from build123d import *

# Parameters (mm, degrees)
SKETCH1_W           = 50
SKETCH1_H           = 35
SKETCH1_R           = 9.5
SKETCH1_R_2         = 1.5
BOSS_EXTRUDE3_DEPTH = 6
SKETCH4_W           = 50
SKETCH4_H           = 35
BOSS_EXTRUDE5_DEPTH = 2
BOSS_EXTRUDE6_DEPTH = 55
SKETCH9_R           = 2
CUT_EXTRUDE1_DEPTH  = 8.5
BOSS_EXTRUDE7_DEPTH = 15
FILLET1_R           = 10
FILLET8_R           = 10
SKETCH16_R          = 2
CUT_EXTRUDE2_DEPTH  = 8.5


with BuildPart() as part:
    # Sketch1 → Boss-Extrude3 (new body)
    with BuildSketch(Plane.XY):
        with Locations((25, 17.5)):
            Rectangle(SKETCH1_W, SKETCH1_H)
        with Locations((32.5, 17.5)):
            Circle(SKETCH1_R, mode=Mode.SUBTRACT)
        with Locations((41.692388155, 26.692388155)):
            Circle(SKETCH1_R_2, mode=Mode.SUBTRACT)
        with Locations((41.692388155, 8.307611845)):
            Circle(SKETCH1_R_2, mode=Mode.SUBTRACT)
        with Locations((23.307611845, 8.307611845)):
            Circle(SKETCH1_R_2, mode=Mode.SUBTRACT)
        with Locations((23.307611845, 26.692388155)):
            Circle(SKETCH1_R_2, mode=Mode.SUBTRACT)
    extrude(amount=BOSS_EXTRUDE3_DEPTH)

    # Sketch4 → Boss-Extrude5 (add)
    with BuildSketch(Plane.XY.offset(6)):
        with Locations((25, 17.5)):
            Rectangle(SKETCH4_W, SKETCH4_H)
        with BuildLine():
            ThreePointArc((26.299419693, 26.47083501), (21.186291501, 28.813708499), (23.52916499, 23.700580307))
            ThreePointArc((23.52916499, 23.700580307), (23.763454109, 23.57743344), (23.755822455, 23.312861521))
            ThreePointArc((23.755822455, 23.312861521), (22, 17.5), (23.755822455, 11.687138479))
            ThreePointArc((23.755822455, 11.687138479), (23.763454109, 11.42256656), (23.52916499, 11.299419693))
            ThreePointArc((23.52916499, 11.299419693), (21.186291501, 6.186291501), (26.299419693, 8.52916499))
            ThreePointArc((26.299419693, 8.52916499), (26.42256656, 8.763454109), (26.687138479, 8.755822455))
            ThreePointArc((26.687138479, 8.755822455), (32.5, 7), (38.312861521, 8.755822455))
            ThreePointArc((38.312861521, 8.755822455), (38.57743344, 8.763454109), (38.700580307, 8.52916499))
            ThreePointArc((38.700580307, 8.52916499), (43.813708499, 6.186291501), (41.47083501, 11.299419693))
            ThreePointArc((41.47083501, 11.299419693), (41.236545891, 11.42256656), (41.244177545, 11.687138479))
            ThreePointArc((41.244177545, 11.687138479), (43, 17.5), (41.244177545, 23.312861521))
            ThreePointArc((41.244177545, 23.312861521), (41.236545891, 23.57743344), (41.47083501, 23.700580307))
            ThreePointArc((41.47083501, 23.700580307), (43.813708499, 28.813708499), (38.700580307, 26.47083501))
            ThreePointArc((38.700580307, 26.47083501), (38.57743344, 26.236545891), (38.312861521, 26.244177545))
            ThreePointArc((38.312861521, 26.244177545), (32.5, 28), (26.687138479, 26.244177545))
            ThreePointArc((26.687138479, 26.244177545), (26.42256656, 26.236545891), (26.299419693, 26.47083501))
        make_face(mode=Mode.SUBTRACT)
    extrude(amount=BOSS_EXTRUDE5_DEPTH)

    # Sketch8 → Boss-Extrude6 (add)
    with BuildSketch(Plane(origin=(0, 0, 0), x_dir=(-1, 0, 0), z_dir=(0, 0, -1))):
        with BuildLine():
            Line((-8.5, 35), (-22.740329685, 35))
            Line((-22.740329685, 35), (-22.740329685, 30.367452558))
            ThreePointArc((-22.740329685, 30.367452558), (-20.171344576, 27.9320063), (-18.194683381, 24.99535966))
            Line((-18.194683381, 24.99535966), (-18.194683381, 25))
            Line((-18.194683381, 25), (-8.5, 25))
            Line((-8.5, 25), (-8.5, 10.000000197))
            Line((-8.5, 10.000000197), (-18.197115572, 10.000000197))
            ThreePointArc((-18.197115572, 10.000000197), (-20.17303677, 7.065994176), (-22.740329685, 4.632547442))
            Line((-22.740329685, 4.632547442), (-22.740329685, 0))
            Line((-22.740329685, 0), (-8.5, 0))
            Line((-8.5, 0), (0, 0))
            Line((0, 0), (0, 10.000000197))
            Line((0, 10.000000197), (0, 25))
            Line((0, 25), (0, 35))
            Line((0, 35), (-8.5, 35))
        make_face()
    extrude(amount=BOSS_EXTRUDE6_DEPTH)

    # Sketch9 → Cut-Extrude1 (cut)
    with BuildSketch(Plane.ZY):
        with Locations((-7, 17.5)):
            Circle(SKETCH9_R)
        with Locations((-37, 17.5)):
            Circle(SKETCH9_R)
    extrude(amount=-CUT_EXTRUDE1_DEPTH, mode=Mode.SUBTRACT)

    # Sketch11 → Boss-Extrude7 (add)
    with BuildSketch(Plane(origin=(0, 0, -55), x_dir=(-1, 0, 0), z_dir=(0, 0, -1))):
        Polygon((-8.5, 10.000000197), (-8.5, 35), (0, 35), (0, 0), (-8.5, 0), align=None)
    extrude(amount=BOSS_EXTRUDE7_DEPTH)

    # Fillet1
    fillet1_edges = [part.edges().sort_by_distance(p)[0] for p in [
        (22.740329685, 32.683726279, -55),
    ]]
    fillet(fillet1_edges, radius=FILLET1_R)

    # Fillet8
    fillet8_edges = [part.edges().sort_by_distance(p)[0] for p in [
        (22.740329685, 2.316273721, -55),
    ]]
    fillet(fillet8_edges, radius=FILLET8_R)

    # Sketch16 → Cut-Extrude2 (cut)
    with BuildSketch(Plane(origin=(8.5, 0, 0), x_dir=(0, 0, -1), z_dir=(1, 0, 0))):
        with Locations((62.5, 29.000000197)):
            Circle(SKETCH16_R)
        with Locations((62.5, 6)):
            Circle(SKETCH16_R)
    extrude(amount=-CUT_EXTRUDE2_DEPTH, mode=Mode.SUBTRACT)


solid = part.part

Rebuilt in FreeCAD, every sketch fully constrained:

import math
import FreeCAD as App
import Part
import Sketcher
from FreeCAD import Vector


def edges_at(feature, points):
    """Names of the edges that pass closest to the given points."""
    edges = feature.Shape.Edges
    near = lambda p: min(range(len(edges)), key=lambda i: edges[i].distToShape(Part.Vertex(*p))[0])
    return sorted({f"Edge{near(p) + 1}" for p in points})

doc = App.newDocument("Part")
body = doc.addObject("PartDesign::Body", "Body")

sketch1 = body.newObject("Sketcher::SketchObject", "Sketch")
sketch1.AttachmentSupport = (doc.getObject("XY_Plane"), [""])
sketch1.MapMode = "FlatFace"
sketch1.addGeometry([
    Part.LineSegment(Vector(0, 35, 0), Vector(0, 0, 0)),
    Part.LineSegment(Vector(0, 0, 0), Vector(50, 0, 0)),
    Part.LineSegment(Vector(50, 0, 0), Vector(50, 35, 0)),
    Part.LineSegment(Vector(50, 35, 0), Vector(0, 35, 0)),
    Part.Circle(Vector(23.3, 8.3, 0), Vector(0, 0, 1), 1.5),
    Part.Circle(Vector(41.7, 8.3, 0), Vector(0, 0, 1), 1.5),
    Part.Circle(Vector(32.5, 17.5, 0), Vector(0, 0, 1), 9.5),
    Part.Circle(Vector(23.3, 26.7, 0), Vector(0, 0, 1), 1.5),
    Part.Circle(Vector(41.7, 26.7, 0), Vector(0, 0, 1), 1.5),
], False)
sketch1.addConstraint([
    Sketcher.Constraint("Coincident", 0, 2, 1, 1),
    Sketcher.Constraint("Coincident", 1, 2, 2, 1),
    Sketcher.Constraint("Coincident", 2, 2, 3, 1),
    Sketcher.Constraint("Coincident", 3, 2, 0, 1),
    Sketcher.Constraint("Vertical", 0),
    Sketcher.Constraint("Horizontal", 1),
    Sketcher.Constraint("Vertical", 2),
    Sketcher.Constraint("Horizontal", 3),
    Sketcher.Constraint("Coincident", 0, 2, -1, 1),
    Sketcher.Constraint("Equal", 4, 5),
    Sketcher.Constraint("Equal", 5, 7),
    Sketcher.Constraint("Equal", 7, 8),
    Sketcher.Constraint("Horizontal", 4, 3, 5, 3),
    Sketcher.Constraint("Horizontal", 7, 3, 8, 3),
    Sketcher.Constraint("Vertical", 4, 3, 7, 3),
    Sketcher.Constraint("Vertical", 5, 3, 8, 3),
    Sketcher.Constraint("Diameter", 4, 3.0),
    Sketcher.Constraint("Diameter", 6, 19.0),
    Sketcher.Constraint("DistanceX", 1, 1, 1, 2, 50.0),
    Sketcher.Constraint("DistanceY", 0, 2, 0, 1, 35.0),
    Sketcher.Constraint("DistanceX", -1, 1, 6, 3, 32.5),
    Sketcher.Constraint("DistanceY", -1, 1, 6, 3, 17.5),
    Sketcher.Constraint("DistanceX", -1, 1, 4, 3, 23.307612),
    Sketcher.Constraint("DistanceY", -1, 1, 4, 3, 8.307612),
    Sketcher.Constraint("DistanceX", -1, 1, 5, 3, 41.692388),
    Sketcher.Constraint("DistanceY", -1, 1, 7, 3, 26.692388),
])
pad1 = body.newObject("PartDesign::Pad", "Pad")
pad1.Profile = sketch1
pad1.Length = 6

sketch2 = body.newObject("Sketcher::SketchObject", "Sketch001")
sketch2.AttachmentSupport = (doc.getObject("XY_Plane"), [""])
sketch2.MapMode = "FlatFace"
sketch2.AttachmentOffset = App.Placement(Vector(0, 0, 6), App.Rotation())
sketch2.addGeometry([
    Part.LineSegment(Vector(0, 35, 0), Vector(0, 0, 0)),
    Part.LineSegment(Vector(0, 0, 0), Vector(50, 0, 0)),
    Part.LineSegment(Vector(50, 0, 0), Vector(50, 35, 0)),
    Part.LineSegment(Vector(50, 35, 0), Vector(0, 35, 0)),
    Part.ArcOfCircle(Part.Circle(Vector(23.307612, 26.692388, 0), Vector(0, 0, 1), 3), math.radians(-4.235209), math.radians(274.235209)),
    Part.ArcOfCircle(Part.Circle(Vector(26.548737, 26.452372, 0), Vector(0, 0, 1), 0.25), math.radians(175.764791), math.radians(303.614743)),
    Part.ArcOfCircle(Part.Circle(Vector(32.5, 17.5, 0), Vector(0, 0, 1), 10.5), math.radians(56.385257), math.radians(123.614743)),
    Part.ArcOfCircle(Part.Circle(Vector(38.451263, 26.452372, 0), Vector(0, 0, 1), 0.25), math.radians(-123.614743), math.radians(4.235209)),
    Part.ArcOfCircle(Part.Circle(Vector(41.692388, 26.692388, 0), Vector(0, 0, 1), 3), math.radians(-94.235209), math.radians(184.235209)),
    Part.ArcOfCircle(Part.Circle(Vector(41.452372, 23.451263, 0), Vector(0, 0, 1), 0.25), math.radians(85.764791), math.radians(213.614743)),
    Part.ArcOfCircle(Part.Circle(Vector(32.5, 17.5, 0), Vector(0, 0, 1), 10.5), math.radians(-33.614743), math.radians(33.614743)),
    Part.ArcOfCircle(Part.Circle(Vector(41.452372, 11.548737, 0), Vector(0, 0, 1), 0.25), math.radians(146.385257), math.radians(274.235209)),
    Part.ArcOfCircle(Part.Circle(Vector(41.692388, 8.307612, 0), Vector(0, 0, 1), 3), math.radians(175.764791), math.radians(454.235209)),
    Part.ArcOfCircle(Part.Circle(Vector(38.451263, 8.547628, 0), Vector(0, 0, 1), 0.25), math.radians(-4.235209), math.radians(123.614743)),
    Part.ArcOfCircle(Part.Circle(Vector(32.5, 17.5, 0), Vector(0, 0, 1), 10.5), math.radians(-123.614743), math.radians(-56.385257)),
    Part.ArcOfCircle(Part.Circle(Vector(26.548737, 8.547628, 0), Vector(0, 0, 1), 0.25), math.radians(56.385257), math.radians(184.235209)),
    Part.ArcOfCircle(Part.Circle(Vector(23.307612, 8.307612, 0), Vector(0, 0, 1), 3), math.radians(85.764791), math.radians(364.235209)),
    Part.ArcOfCircle(Part.Circle(Vector(23.547628, 11.548737, 0), Vector(0, 0, 1), 0.25), math.radians(-94.235209), math.radians(33.614743)),
    Part.ArcOfCircle(Part.Circle(Vector(32.5, 17.5, 0), Vector(0, 0, 1), 10.5), math.radians(146.385257), math.radians(213.614743)),
    Part.ArcOfCircle(Part.Circle(Vector(23.547628, 23.451263, 0), Vector(0, 0, 1), 0.25), math.radians(-33.614743), math.radians(94.235209)),
], False)
sketch2.addConstraint([
    Sketcher.Constraint("Coincident", 0, 2, 1, 1),
    Sketcher.Constraint("Coincident", 1, 2, 2, 1),
    Sketcher.Constraint("Coincident", 2, 2, 3, 1),
    Sketcher.Constraint("Coincident", 3, 2, 0, 1),
    Sketcher.Constraint("Coincident", 4, 1, 5, 1),
    Sketcher.Constraint("Coincident", 5, 2, 6, 2),
    Sketcher.Constraint("Coincident", 6, 1, 7, 1),
    Sketcher.Constraint("Coincident", 7, 2, 8, 2),
    Sketcher.Constraint("Coincident", 8, 1, 9, 1),
    Sketcher.Constraint("Coincident", 9, 2, 10, 2),
    Sketcher.Constraint("Coincident", 10, 1, 11, 1),
    Sketcher.Constraint("Coincident", 11, 2, 12, 2),
    Sketcher.Constraint("Coincident", 12, 1, 13, 1),
    Sketcher.Constraint("Coincident", 13, 2, 14, 2),
    Sketcher.Constraint("Coincident", 14, 1, 15, 1),
    Sketcher.Constraint("Coincident", 15, 2, 16, 2),
    Sketcher.Constraint("Coincident", 16, 1, 17, 1),
    Sketcher.Constraint("Coincident", 17, 2, 18, 2),
    Sketcher.Constraint("Coincident", 18, 1, 19, 1),
    Sketcher.Constraint("Coincident", 19, 2, 4, 2),
    Sketcher.Constraint("Vertical", 0),
    Sketcher.Constraint("Horizontal", 1),
    Sketcher.Constraint("Vertical", 2),
    Sketcher.Constraint("Horizontal", 3),
    Sketcher.Constraint("Coincident", 0, 2, -1, 1),
    Sketcher.Constraint("Coincident", 10, 3, 6, 3),
    Sketcher.Constraint("Coincident", 14, 3, 6, 3),
    Sketcher.Constraint("Coincident", 18, 3, 6, 3),
    Sketcher.Constraint("Radius", 4, 3.0),
    Sketcher.Constraint("Radius", 8, 3.0),
    Sketcher.Constraint("Radius", 12, 3.0),
    Sketcher.Constraint("Radius", 16, 3.0),
    Sketcher.Constraint("Radius", 6, 10.5),
    Sketcher.Constraint("Radius", 10, 10.5),
    Sketcher.Constraint("Radius", 14, 10.5),
    Sketcher.Constraint("Radius", 18, 10.5),
    Sketcher.Constraint("DistanceX", 1, 1, 1, 2, 50.0),
    Sketcher.Constraint("DistanceY", 0, 2, 0, 1, 35.0),
    Sketcher.Constraint("Radius", 5, 0.25),
    Sketcher.Constraint("Radius", 7, 0.25),
    Sketcher.Constraint("Radius", 9, 0.25),
    Sketcher.Constraint("Radius", 11, 0.25),
    Sketcher.Constraint("Radius", 13, 0.25),
    Sketcher.Constraint("Radius", 15, 0.25),
    Sketcher.Constraint("Radius", 17, 0.25),
    Sketcher.Constraint("Radius", 19, 0.25),
    Sketcher.Constraint("DistanceX", -1, 1, 6, 3, 32.5),
    Sketcher.Constraint("DistanceY", -1, 1, 6, 3, 17.5),
    Sketcher.Constraint("DistanceX", 5, 3, 5, 2, 0.138401),
    Sketcher.Constraint("DistanceX", 6, 1, 7, 3, 0.138401),
    Sketcher.Constraint("DistanceY", 9, 2, 9, 3, 0.138401),
    Sketcher.Constraint("DistanceY", 11, 3, 10, 1, 0.138401),
    Sketcher.Constraint("DistanceX", 13, 2, 13, 3, 0.138401),
    Sketcher.Constraint("DistanceX", 15, 3, 14, 1, 0.138401),
    Sketcher.Constraint("DistanceY", 17, 3, 17, 2, 0.138401),
    Sketcher.Constraint("DistanceY", 18, 1, 19, 3, 0.138401),
    Sketcher.Constraint("DistanceX", -1, 1, 4, 3, 23.307612),
    Sketcher.Constraint("DistanceY", -1, 1, 4, 3, 26.692388),
    Sketcher.Constraint("DistanceX", -1, 1, 8, 3, 41.692388),
    Sketcher.Constraint("DistanceY", -1, 1, 8, 3, 26.692388),
    Sketcher.Constraint("DistanceX", -1, 1, 12, 3, 41.692388),
    Sketcher.Constraint("DistanceY", -1, 1, 12, 3, 8.307612),
    Sketcher.Constraint("DistanceX", -1, 1, 16, 3, 23.307612),
    Sketcher.Constraint("DistanceY", -1, 1, 16, 3, 8.307612),
    Sketcher.Constraint("DistanceX", -1, 1, 4, 1, 26.29942),
    Sketcher.Constraint("DistanceX", -1, 1, 7, 2, 38.70058),
    Sketcher.Constraint("DistanceY", -1, 1, 8, 1, 23.70058),
    Sketcher.Constraint("DistanceY", -1, 1, 11, 2, 11.29942),
    Sketcher.Constraint("DistanceX", -1, 1, 12, 1, 38.70058),
    Sketcher.Constraint("DistanceX", -1, 1, 15, 2, 26.29942),
    Sketcher.Constraint("DistanceY", -1, 1, 16, 1, 11.29942),
    Sketcher.Constraint("DistanceY", -1, 1, 19, 2, 23.70058),
])
pad2 = body.newObject("PartDesign::Pad", "Pad001")
pad2.Profile = sketch2
pad2.Length = 2

sketch3 = body.newObject("Sketcher::SketchObject", "Sketch002")
sketch3.AttachmentSupport = (doc.getObject("XY_Plane"), [""])
sketch3.MapMode = "FlatFace"
sketch3.addGeometry([
    Part.LineSegment(Vector(22.7403, 35, 0), Vector(22.7403, 30.3675, 0)),
    Part.ArcOfCircle(Part.Circle(Vector(32.5, 17.5, 0), Vector(0, 0, 1), 16.15), math.radians(127), math.radians(152)),
    Part.LineSegment(Vector(18.1947, 24.9954, 0), Vector(18.1947, 25, 0)),
    Part.LineSegment(Vector(18.1947, 25, 0), Vector(8.5, 25, 0)),
    Part.LineSegment(Vector(8.5, 25, 0), Vector(8.5, 10, 0)),
    Part.LineSegment(Vector(8.5, 10, 0), Vector(18.1971, 10, 0)),
    Part.ArcOfCircle(Part.Circle(Vector(32.5, 17.5, 0), Vector(0, 0, 1), 16.15), math.radians(-152), math.radians(-127)),
    Part.LineSegment(Vector(22.7403, 4.6325, 0), Vector(22.7403, 0, 0)),
    Part.LineSegment(Vector(22.7403, 0, 0), Vector(0, 0, 0)),
    Part.LineSegment(Vector(0, 0, 0), Vector(0, 35, 0)),
    Part.LineSegment(Vector(0, 35, 0), Vector(22.7403, 35, 0)),
], False)
sketch3.addConstraint([
    Sketcher.Constraint("Coincident", 0, 2, 1, 1),
    Sketcher.Constraint("Coincident", 1, 2, 2, 1),
    Sketcher.Constraint("Coincident", 2, 2, 3, 1),
    Sketcher.Constraint("Coincident", 3, 2, 4, 1),
    Sketcher.Constraint("Coincident", 4, 2, 5, 1),
    Sketcher.Constraint("Coincident", 5, 2, 6, 1),
    Sketcher.Constraint("Coincident", 6, 2, 7, 1),
    Sketcher.Constraint("Coincident", 7, 2, 8, 1),
    Sketcher.Constraint("Coincident", 8, 2, 9, 1),
    Sketcher.Constraint("Coincident", 9, 2, 10, 1),
    Sketcher.Constraint("Coincident", 10, 2, 0, 1),
    Sketcher.Constraint("Vertical", 0),
    Sketcher.Constraint("Vertical", 2),
    Sketcher.Constraint("Horizontal", 3),
    Sketcher.Constraint("Vertical", 4),
    Sketcher.Constraint("Horizontal", 5),
    Sketcher.Constraint("Vertical", 7),
    Sketcher.Constraint("Horizontal", 8),
    Sketcher.Constraint("Vertical", 9),
    Sketcher.Constraint("Horizontal", 10),
    Sketcher.Constraint("Coincident", 8, 2, -1, 1),
    Sketcher.Constraint("Coincident", 6, 3, 1, 3),
    Sketcher.Constraint("Equal", 1, 6),
    Sketcher.Constraint("Vertical", 0, 2, 6, 2),
    Sketcher.Constraint("Equal", 0, 7),
    Sketcher.Constraint("DistanceY", 4, 2, 4, 1, 15.0),
    Sketcher.Constraint("DistanceY", 9, 1, 9, 2, 35.0),
    Sketcher.Constraint("Radius", 1, 16.15),
    Sketcher.Constraint("DistanceY", -1, 1, 2, 2, 25.0),
    Sketcher.Constraint("DistanceX", 3, 2, 1, 3, 24.0),
    Sketcher.Constraint("DistanceX", -1, 1, 1, 3, 32.5),
    Sketcher.Constraint("DistanceX", 8, 2, 8, 1, 22.74033),
    Sketcher.Constraint("DistanceY", 2, 1, 2, 2, 0.00464),
])
pad3 = body.newObject("PartDesign::Pad", "Pad002")
pad3.Profile = sketch3
pad3.Length = 55
pad3.Reversed = True

sketch4 = body.newObject("Sketcher::SketchObject", "Sketch003")
sketch4.AttachmentSupport = (doc.getObject("YZ_Plane"), [""])
sketch4.MapMode = "FlatFace"
sketch4.addGeometry([
    Part.Circle(Vector(17.5, -7, 0), Vector(0, 0, 1), 2),
    Part.Circle(Vector(17.5, -37, 0), Vector(0, 0, 1), 2),
], False)
sketch4.addConstraint([
    Sketcher.Constraint("Equal", 0, 1),
    Sketcher.Constraint("Vertical", 0, 3, 1, 3),
    Sketcher.Constraint("Diameter", 0, 4.0),
    Sketcher.Constraint("DistanceY", 0, 3, -1, 1, 7.0),
    Sketcher.Constraint("DistanceY", 1, 3, -1, 1, 37.0),
    Sketcher.Constraint("DistanceX", -1, 1, 0, 3, 17.5),
])
pocket1 = body.newObject("PartDesign::Pocket", "Pocket")
pocket1.Profile = sketch4
pocket1.Length = 8.5
pocket1.Reversed = True

sketch5 = body.newObject("Sketcher::SketchObject", "Sketch004")
sketch5.AttachmentSupport = (doc.getObject("XY_Plane"), [""])
sketch5.MapMode = "FlatFace"
sketch5.AttachmentOffset = App.Placement(Vector(0, 0, -55), App.Rotation())
sketch5.addGeometry([
    Part.LineSegment(Vector(8, 35, 0), Vector(8, 0, 0)),
    Part.LineSegment(Vector(8, 0, 0), Vector(0, 0, 0)),
    Part.LineSegment(Vector(0, 0, 0), Vector(0, 35, 0)),
    Part.LineSegment(Vector(0, 35, 0), Vector(8, 35, 0)),
], False)
sketch5.addConstraint([
    Sketcher.Constraint("Coincident", 0, 2, 1, 1),
    Sketcher.Constraint("Coincident", 1, 2, 2, 1),
    Sketcher.Constraint("Coincident", 2, 2, 3, 1),
    Sketcher.Constraint("Coincident", 3, 2, 0, 1),
    Sketcher.Constraint("Vertical", 0),
    Sketcher.Constraint("Horizontal", 1),
    Sketcher.Constraint("Vertical", 2),
    Sketcher.Constraint("Horizontal", 3),
    Sketcher.Constraint("Coincident", 1, 2, -1, 1),
    Sketcher.Constraint("DistanceY", 0, 2, 0, 1, 35.0),
    Sketcher.Constraint("DistanceX", 1, 2, 1, 1, 8.5),
])
pad4 = body.newObject("PartDesign::Pad", "Pad003")
pad4.Profile = sketch5
pad4.Length = 15
pad4.Reversed = True
doc.recompute()

fillet = body.newObject("PartDesign::Fillet", "Fillet")
fillet.Base = (pad4, edges_at(pad4, [(22.74, 32.684, -55)]))
fillet.Radius = 10
doc.recompute()

fillet2 = body.newObject("PartDesign::Fillet", "Fillet001")
fillet2.Base = (fillet, edges_at(fillet, [(22.74, 2.316, -55)]))
fillet2.Radius = 10

sketch6 = body.newObject("Sketcher::SketchObject", "Sketch005")
sketch6.AttachmentSupport = (doc.getObject("YZ_Plane"), [""])
sketch6.MapMode = "FlatFace"
sketch6.AttachmentOffset = App.Placement(Vector(0, 0, 8.5), App.Rotation())
sketch6.addGeometry([
    Part.Circle(Vector(29, -62.5, 0), Vector(0, 0, 1), 2),
    Part.Circle(Vector(6, -62.5, 0), Vector(0, 0, 1), 2),
], False)
sketch6.addConstraint([
    Sketcher.Constraint("Equal", 0, 1),
    Sketcher.Constraint("Horizontal", 0, 3, 1, 3),
    Sketcher.Constraint("Diameter", 0, 4.0),
    Sketcher.Constraint("DistanceX", -1, 1, 0, 3, 29.0),
    Sketcher.Constraint("DistanceX", -1, 1, 1, 3, 6.0),
    Sketcher.Constraint("DistanceY", 0, 3, -1, 1, 62.5),
])
pocket2 = body.newObject("PartDesign::Pocket", "Pocket001")
pocket2.Profile = sketch6
pocket2.Length = 8.5

doc.recompute()
